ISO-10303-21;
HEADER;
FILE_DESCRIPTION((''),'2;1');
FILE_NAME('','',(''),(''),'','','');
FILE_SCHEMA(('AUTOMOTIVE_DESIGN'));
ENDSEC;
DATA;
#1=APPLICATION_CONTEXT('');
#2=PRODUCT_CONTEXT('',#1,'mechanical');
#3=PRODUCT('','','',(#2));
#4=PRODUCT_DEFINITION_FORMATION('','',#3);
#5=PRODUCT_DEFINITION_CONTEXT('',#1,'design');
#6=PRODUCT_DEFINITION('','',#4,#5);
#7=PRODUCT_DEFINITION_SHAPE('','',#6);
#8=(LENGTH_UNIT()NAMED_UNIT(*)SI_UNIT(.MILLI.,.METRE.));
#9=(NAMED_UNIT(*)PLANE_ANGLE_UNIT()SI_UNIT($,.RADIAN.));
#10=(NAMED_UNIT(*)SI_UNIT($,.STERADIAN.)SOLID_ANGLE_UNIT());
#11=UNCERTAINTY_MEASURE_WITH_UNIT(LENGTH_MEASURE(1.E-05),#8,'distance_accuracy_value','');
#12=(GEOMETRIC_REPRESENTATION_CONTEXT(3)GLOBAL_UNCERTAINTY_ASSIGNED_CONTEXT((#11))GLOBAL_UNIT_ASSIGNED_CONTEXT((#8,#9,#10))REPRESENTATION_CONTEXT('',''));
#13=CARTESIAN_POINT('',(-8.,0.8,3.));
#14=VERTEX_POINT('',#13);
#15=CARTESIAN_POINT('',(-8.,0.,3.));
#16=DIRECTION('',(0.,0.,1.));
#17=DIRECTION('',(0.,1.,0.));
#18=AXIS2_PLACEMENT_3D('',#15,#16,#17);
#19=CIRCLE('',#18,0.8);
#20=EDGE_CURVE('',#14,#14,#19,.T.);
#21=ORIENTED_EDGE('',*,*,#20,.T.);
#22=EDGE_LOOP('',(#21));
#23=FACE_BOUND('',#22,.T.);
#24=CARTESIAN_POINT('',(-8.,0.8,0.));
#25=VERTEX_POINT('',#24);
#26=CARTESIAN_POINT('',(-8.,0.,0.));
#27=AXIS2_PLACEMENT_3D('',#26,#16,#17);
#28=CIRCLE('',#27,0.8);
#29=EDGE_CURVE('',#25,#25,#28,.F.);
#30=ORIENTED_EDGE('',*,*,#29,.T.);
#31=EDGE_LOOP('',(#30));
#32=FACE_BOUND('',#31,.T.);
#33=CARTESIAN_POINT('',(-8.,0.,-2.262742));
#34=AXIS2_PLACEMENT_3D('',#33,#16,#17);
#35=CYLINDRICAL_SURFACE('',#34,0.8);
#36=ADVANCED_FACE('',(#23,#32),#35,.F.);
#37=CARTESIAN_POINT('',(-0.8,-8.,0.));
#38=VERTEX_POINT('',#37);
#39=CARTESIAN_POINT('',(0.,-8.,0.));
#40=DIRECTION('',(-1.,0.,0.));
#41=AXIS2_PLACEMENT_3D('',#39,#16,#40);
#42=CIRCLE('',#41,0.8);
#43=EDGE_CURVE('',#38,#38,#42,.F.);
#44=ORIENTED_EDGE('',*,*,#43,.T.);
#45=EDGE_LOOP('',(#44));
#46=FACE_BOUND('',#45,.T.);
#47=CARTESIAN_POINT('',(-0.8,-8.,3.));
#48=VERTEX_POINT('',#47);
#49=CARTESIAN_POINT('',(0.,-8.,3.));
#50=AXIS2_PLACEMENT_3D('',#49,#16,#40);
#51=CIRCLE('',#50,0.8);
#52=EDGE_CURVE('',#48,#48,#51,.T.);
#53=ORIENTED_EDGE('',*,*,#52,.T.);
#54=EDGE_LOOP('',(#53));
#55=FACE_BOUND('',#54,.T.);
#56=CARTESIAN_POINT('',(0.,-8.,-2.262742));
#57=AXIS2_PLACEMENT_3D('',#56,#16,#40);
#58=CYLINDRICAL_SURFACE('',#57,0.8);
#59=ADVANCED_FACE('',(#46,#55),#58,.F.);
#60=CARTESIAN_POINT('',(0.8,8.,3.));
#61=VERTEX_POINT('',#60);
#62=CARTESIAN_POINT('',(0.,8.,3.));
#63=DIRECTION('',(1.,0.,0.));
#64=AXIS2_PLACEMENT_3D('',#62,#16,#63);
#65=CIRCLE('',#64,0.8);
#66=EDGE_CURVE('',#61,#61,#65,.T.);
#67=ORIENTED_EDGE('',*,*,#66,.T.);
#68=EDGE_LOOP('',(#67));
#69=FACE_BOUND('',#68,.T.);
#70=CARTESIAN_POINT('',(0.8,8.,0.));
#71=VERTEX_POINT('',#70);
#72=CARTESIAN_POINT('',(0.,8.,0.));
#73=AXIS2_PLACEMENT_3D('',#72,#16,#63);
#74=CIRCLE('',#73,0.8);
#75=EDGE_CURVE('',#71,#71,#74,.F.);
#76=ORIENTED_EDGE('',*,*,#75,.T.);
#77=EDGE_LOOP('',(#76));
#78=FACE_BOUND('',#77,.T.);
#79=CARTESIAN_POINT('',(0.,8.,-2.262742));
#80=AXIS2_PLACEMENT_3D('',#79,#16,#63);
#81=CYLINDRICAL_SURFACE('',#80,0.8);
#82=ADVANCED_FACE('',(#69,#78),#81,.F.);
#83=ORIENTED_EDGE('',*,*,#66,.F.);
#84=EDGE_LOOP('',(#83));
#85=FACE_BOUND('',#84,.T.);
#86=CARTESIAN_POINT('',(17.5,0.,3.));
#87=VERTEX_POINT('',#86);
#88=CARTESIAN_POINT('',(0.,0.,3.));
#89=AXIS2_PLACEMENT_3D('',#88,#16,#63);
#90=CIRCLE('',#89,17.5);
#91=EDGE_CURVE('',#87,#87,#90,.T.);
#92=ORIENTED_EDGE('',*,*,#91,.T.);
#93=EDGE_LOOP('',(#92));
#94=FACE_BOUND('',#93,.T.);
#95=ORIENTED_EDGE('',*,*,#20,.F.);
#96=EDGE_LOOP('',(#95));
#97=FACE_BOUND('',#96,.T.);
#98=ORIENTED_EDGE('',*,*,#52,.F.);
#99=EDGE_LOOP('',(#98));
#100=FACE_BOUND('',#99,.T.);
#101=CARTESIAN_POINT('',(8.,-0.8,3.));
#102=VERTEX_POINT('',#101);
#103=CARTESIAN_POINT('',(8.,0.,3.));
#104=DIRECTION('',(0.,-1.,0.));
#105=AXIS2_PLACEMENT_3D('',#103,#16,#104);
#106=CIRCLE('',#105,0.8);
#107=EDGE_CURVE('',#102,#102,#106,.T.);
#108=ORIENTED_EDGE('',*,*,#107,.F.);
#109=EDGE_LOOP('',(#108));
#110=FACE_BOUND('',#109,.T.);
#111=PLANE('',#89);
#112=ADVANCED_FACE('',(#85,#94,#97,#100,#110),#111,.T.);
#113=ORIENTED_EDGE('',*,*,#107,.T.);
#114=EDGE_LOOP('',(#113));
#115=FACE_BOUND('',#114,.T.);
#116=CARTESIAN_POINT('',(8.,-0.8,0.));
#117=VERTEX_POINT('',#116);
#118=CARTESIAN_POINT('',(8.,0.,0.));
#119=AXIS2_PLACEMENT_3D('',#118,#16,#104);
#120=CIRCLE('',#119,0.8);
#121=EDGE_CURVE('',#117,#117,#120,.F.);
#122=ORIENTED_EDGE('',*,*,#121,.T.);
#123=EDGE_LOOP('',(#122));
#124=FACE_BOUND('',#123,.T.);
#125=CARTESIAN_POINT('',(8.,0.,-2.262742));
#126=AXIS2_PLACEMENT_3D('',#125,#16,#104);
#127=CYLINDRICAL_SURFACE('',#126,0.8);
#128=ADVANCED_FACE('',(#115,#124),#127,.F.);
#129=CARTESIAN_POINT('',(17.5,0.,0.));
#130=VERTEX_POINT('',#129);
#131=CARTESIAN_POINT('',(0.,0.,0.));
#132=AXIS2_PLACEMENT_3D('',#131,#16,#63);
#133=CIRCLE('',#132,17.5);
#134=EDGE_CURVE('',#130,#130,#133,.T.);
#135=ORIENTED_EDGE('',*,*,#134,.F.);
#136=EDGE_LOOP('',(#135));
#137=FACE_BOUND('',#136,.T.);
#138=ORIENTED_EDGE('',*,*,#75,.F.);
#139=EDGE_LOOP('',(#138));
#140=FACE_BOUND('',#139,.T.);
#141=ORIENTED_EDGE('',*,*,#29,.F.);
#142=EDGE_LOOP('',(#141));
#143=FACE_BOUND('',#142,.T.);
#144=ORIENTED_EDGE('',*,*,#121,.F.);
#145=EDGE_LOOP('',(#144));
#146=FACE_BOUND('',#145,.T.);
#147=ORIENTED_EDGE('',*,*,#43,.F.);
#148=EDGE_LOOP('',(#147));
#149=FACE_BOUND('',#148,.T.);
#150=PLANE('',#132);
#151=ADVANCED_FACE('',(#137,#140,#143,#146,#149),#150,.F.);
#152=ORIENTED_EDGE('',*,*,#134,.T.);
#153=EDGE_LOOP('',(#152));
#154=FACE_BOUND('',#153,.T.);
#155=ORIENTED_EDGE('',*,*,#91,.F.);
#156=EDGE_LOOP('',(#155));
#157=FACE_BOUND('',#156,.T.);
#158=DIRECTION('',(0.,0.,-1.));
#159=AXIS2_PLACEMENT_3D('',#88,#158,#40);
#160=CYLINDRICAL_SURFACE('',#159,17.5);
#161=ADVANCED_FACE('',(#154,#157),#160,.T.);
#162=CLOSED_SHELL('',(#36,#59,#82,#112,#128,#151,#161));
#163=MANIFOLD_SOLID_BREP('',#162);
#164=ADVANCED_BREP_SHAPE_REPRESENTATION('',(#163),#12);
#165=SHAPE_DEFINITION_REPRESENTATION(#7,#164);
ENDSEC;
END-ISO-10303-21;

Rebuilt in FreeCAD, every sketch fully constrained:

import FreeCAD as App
import Part
import Sketcher

V = App.Vector

doc = App.newDocument("Part")
body = doc.addObject("PartDesign::Body", "Body")

sketch1 = doc.addObject("Sketcher::SketchObject", "Sketch")
body.addObject(sketch1)
sketch1.AttachmentSupport = (doc.XY_Plane, [""])
sketch1.MapMode = "FlatFace"
sketch1.addGeometry(Part.Circle(V(0, 0, 0), V(0, 0, 1), 17.5), False)
sketch1.addConstraint(Sketcher.Constraint("Coincident", 0, 3, -1, 1))
sketch1.addConstraint(Sketcher.Constraint("Diameter", 0, 35.0))
pad1 = doc.addObject("PartDesign::Pad", "Pad")
body.addObject(pad1)
pad1.Profile = sketch1
pad1.Length = 3

sketch2 = doc.addObject("Sketcher::SketchObject", "Sketch001")
body.addObject(sketch2)
sketch2.AttachmentSupport = (doc.XY_Plane, [""])
sketch2.MapMode = "FlatFace"
sketch2.AttachmentOffset = App.Placement(V(0, 0, 3), App.Rotation())
sketch2.addGeometry(Part.Circle(V(0, 8, 0), V(0, 0, 1), 0.8), False)
sketch2.addConstraint(Sketcher.Constraint("PointOnObject", 0, 3, -2))
sketch2.addConstraint(Sketcher.Constraint("Diameter", 0, 1.6))
sketch2.addConstraint(Sketcher.Constraint("DistanceY", -1, 1, 0, 3, 8.0))
pocket1 = doc.addObject("PartDesign::Pocket", "Pocket")
body.addObject(pocket1)
pocket1.Profile = sketch2
pocket1.Length = 3
doc.recompute()

polarpattern = doc.addObject("PartDesign::PolarPattern", "PolarPattern")
body.addObject(polarpattern)
polarpattern.Originals = [pocket1]
polarpattern.Axis = (doc.Z_Axis, [""])
polarpattern.Angle = 360
polarpattern.Occurrences = 4
body.Tip = polarpattern

doc.recompute()
